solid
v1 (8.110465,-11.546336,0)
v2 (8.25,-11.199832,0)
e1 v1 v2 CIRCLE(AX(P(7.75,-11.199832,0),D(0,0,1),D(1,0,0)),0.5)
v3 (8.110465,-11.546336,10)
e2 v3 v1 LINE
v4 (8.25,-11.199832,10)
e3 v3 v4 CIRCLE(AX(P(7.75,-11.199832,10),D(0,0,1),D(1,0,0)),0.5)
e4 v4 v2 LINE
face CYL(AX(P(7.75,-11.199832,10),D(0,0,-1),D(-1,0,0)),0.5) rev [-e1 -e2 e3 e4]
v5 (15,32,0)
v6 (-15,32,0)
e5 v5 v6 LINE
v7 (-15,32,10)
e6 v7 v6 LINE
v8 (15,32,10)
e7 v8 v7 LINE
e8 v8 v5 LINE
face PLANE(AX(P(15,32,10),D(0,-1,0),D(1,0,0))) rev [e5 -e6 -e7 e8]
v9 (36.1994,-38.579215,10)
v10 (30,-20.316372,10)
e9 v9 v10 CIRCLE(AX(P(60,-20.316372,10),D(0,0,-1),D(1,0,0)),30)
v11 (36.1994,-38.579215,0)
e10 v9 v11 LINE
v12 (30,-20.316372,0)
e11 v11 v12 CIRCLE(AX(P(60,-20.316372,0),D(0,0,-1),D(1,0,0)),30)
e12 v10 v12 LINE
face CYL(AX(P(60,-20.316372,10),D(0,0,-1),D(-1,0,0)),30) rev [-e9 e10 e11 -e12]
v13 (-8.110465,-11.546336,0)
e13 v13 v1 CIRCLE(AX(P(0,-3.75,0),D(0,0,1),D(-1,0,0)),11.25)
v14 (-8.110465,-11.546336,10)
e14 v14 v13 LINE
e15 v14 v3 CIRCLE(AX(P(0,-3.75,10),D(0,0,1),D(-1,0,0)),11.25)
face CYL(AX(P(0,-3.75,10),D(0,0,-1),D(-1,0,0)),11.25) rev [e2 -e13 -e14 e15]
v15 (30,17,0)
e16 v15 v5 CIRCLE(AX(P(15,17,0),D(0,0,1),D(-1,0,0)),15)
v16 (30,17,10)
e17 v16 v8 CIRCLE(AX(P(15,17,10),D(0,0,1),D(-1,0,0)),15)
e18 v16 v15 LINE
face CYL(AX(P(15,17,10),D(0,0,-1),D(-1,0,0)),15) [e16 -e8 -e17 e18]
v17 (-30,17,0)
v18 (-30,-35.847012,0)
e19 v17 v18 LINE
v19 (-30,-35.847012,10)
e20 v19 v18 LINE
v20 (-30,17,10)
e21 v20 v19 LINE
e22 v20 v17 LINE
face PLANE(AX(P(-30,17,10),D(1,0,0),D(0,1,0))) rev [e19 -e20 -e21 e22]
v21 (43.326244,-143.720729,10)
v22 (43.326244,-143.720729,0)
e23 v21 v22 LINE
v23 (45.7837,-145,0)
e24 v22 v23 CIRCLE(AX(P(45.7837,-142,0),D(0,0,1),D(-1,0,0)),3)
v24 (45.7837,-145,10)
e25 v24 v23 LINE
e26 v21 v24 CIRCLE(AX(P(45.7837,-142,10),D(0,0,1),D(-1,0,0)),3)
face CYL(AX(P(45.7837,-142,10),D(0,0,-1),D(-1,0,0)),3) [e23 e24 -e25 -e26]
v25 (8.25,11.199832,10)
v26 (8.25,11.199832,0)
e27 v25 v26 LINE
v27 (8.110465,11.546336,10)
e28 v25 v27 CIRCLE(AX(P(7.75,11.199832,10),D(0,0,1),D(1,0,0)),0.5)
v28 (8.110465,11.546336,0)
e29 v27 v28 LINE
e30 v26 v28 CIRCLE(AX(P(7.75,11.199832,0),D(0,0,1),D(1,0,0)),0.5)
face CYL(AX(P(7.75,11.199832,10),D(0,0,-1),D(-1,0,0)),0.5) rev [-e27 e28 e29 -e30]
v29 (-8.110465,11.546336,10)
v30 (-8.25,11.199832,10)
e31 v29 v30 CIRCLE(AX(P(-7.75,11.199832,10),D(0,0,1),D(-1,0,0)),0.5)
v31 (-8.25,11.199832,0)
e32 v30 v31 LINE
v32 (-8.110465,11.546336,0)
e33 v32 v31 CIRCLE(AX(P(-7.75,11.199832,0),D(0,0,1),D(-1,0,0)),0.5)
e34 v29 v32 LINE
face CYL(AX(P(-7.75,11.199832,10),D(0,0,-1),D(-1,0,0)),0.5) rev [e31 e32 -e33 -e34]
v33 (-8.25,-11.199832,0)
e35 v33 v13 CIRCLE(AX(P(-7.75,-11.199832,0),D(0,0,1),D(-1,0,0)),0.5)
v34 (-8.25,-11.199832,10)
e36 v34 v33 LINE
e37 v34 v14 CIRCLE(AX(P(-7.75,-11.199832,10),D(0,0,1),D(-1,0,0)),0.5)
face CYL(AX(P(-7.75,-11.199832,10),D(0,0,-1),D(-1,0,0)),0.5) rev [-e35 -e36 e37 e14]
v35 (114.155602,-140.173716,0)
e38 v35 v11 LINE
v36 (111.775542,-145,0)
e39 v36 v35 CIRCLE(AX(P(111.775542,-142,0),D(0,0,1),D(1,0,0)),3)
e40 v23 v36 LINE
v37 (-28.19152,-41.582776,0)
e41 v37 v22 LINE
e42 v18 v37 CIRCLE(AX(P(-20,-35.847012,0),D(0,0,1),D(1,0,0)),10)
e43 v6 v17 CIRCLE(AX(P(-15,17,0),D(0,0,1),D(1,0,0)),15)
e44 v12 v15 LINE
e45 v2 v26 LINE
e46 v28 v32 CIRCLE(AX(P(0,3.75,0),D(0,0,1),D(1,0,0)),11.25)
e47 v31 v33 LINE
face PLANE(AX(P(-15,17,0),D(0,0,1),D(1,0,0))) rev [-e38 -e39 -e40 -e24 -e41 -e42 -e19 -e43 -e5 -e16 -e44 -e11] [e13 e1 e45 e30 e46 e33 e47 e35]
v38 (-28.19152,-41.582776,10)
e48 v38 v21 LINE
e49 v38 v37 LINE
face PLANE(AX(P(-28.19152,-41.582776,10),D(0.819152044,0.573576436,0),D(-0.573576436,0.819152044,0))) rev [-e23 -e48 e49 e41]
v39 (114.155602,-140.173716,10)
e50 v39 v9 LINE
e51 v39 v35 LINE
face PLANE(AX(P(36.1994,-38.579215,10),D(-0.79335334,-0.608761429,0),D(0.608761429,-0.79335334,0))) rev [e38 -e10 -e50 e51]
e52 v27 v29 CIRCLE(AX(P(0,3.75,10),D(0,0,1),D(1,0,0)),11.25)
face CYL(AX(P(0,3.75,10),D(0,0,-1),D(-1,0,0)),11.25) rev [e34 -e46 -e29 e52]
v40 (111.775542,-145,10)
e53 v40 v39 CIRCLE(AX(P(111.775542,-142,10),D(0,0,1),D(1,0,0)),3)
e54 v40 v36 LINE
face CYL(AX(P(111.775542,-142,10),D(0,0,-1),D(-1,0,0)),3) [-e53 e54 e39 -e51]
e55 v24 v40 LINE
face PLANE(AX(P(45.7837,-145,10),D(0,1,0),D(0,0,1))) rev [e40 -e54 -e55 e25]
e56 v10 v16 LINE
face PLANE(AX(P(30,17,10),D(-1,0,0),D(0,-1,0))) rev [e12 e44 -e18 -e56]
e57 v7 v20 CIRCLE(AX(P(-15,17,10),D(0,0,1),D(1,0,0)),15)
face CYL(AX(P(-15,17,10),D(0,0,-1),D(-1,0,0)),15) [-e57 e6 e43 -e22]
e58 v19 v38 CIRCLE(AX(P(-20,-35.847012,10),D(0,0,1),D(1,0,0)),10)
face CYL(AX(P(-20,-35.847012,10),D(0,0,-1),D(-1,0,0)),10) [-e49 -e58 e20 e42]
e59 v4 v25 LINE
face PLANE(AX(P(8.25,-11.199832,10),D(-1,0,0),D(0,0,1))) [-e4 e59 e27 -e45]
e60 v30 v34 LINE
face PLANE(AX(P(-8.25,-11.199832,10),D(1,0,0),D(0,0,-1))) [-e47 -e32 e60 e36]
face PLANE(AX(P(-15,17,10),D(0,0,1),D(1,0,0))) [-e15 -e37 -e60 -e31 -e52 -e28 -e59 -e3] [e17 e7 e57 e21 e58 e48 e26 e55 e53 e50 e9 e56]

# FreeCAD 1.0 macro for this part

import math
import FreeCAD as App
import Part
import Sketcher
from FreeCAD import Vector
Q = App.Units.Quantity

doc = App.newDocument("Part")
params = doc.addObject("Spreadsheet::Sheet", "Params")
for row, (alias, value) in enumerate([
    ("sketch1_radius", "15 mm"),
    ("sketch1_radius2", "10 mm"),
    ("sketch1_radius3", "3 mm"),
    ("sketch1_radius4", "30 mm"),
    ("sketch1_radius5", "0.5 mm"),
    ("pad1_length", "10 mm"),
], start=1):
    params.set(f"A{row}", alias)
    params.set(f"B{row}", "=" + value)
    params.setAlias(f"B{row}", alias)

body = doc.addObject("PartDesign::Body", "Body")

# Sketch on XY plane
sketch1 = body.newObject("Sketcher::SketchObject", "Sketch")
sketch1.AttachmentSupport = (doc.getObject("XY_Plane"), [""])
sketch1.MapMode = "FlatFace"
sketch1.addGeometry([
    Part.LineSegment(Vector(15, 32, 0), Vector(-15, 32, 0)),  # 0
    Part.ArcOfCircle(Part.Circle(Vector(-15, 17, 0), Vector(0, 0, 1), 15), math.radians(90), math.radians(180)),  # 1
    Part.LineSegment(Vector(-30, 17, 0), Vector(-30, -35.847012, 0)),  # 2
    Part.ArcOfCircle(Part.Circle(Vector(-20, -35.847012, 0), Vector(0, 0, 1), 10), math.radians(-180), math.radians(-145)),  # 3
    Part.LineSegment(Vector(-28.19152, -41.582776, 0), Vector(43.326244, -143.720729, 0)),  # 4
    Part.ArcOfCircle(Part.Circle(Vector(45.7837, -142, 0), Vector(0, 0, 1), 3), math.radians(-145), math.radians(-90)),  # 5
    Part.LineSegment(Vector(45.7837, -145, 0), Vector(111.775542, -145, 0)),  # 6
    Part.ArcOfCircle(Part.Circle(Vector(111.775542, -142, 0), Vector(0, 0, 1), 3), math.radians(-90), math.radians(37.5)),  # 7
    Part.LineSegment(Vector(114.155602, -140.173716, 0), Vector(36.1994, -38.579215, 0)),  # 8
    Part.ArcOfCircle(Part.Circle(Vector(60, -20.316372, 0), Vector(0, 0, 1), 30), math.radians(180), math.radians(217.5)),  # 9
    Part.LineSegment(Vector(30, -20.316372, 0), Vector(30, 17, 0)),  # 10
    Part.ArcOfCircle(Part.Circle(Vector(15, 17, 0), Vector(0, 0, 1), 15), math.radians(0), math.radians(90)),  # 11
    Part.LineSegment(Vector(8.25, 11.199832, 0), Vector(8.25, -11.199832, 0)),  # 12
    Part.ArcOfCircle(Part.Circle(Vector(7.75, -11.199832, 0), Vector(0, 0, 1), 0.5), math.radians(-43.868665), math.radians(0)),  # 13
    Part.ArcOfCircle(Part.Circle(Vector(0, -3.75, 0), Vector(0, 0, 1), 11.25), math.radians(-136.131336), math.radians(-43.868664)),  # 14
    Part.ArcOfCircle(Part.Circle(Vector(-7.75, -11.199832, 0), Vector(0, 0, 1), 0.5), math.radians(180), math.radians(223.868665)),  # 15
    Part.LineSegment(Vector(-8.25, -11.199832, 0), Vector(-8.25, 11.199832, 0)),  # 16
    Part.ArcOfCircle(Part.Circle(Vector(-7.75, 11.199832, 0), Vector(0, 0, 1), 0.5), math.radians(136.131335), math.radians(180)),  # 17
    Part.ArcOfCircle(Part.Circle(Vector(0, 3.75, 0), Vector(0, 0, 1), 11.25), math.radians(43.868664), math.radians(136.131336)),  # 18
    Part.ArcOfCircle(Part.Circle(Vector(7.75, 11.199832, 0), Vector(0, 0, 1), 0.5), math.radians(0), math.radians(43.868665)),  # 19
], False)
sketch1.addConstraint([
    Sketcher.Constraint("Tangent", 0, 2, 1, 1),
    Sketcher.Constraint("Tangent", 1, 2, 2, 1),
    Sketcher.Constraint("Tangent", 2, 2, 3, 1),
    Sketcher.Constraint("Tangent", 3, 2, 4, 1),
    Sketcher.Constraint("Tangent", 4, 2, 5, 1),
    Sketcher.Constraint("Tangent", 5, 2, 6, 1),
    Sketcher.Constraint("Tangent", 6, 2, 7, 1),
    Sketcher.Constraint("Tangent", 7, 2, 8, 1),
    Sketcher.Constraint("Tangent", 8, 2, 9, 2),
    Sketcher.Constraint("Tangent", 9, 1, 10, 1),
    Sketcher.Constraint("Tangent", 10, 2, 11, 1),
    Sketcher.Constraint("Tangent", 11, 2, 0, 1),
    Sketcher.Constraint("Tangent", 12, 2, 13, 2),
    Sketcher.Constraint("Tangent", 13, 1, 14, 2),
    Sketcher.Constraint("Tangent", 14, 1, 15, 2),
    Sketcher.Constraint("Tangent", 15, 1, 16, 1),
    Sketcher.Constraint("Tangent", 16, 2, 17, 2),
    Sketcher.Constraint("Tangent", 17, 1, 18, 2),
    Sketcher.Constraint("Tangent", 18, 1, 19, 2),
    Sketcher.Constraint("Tangent", 19, 1, 12, 1),
    Sketcher.Constraint("Horizontal", 0),
    Sketcher.Constraint("Vertical", 2),
    Sketcher.Constraint("Horizontal", 6),
    Sketcher.Constraint("Vertical", 10),
    Sketcher.Constraint("Vertical", 12),
    Sketcher.Constraint("Vertical", 16),
    Sketcher.Constraint("Equal", 5, 7),
    Sketcher.Constraint("Equal", 1, 11),
    Sketcher.Constraint("Equal", 13, 15),
    Sketcher.Constraint("Equal", 15, 17),
    Sketcher.Constraint("Equal", 14, 18),
    Sketcher.Constraint("Equal", 17, 19),
    Sketcher.Constraint("Symmetric", 13, 3, 17, 3, -1, 1),
    Sketcher.Constraint("Symmetric", 14, 3, 18, 3, -1),
    Sketcher.Constraint("Radius", 1, 15.0),
    Sketcher.Constraint("Radius", 3, 10.0),
    Sketcher.Constraint("Radius", 5, 3.0),
    Sketcher.Constraint("Radius", 9, 30.0),
    Sketcher.Constraint("Radius", 13, 0.5),
    Sketcher.Constraint("DistanceX", 0, 2, 0, 1, 30.0),
    Sketcher.Constraint("Angle", 4, Q("-55 deg")),
    Sketcher.Constraint("Radius", 14, 11.25),
    Sketcher.Constraint("DistanceX", 1, 3, -1, 1, 15.0),
    Sketcher.Constraint("DistanceY", -1, 1, 1, 3, 17.0),
    Sketcher.Constraint("DistanceY", 5, 3, -1, 1, 142.0),
    Sketcher.Constraint("Angle", 8, Q("127.5 deg")),
    Sketcher.Constraint("DistanceX", 15, 3, 12, 2, 16.0),
    Sketcher.Constraint("DistanceY", 14, 3, 18, 3, 7.5),
    Sketcher.Constraint("DistanceX", 6, 1, 6, 2, 65.991842),
    Sketcher.Constraint("DistanceX", -1, 1, 5, 3, 45.7837),
])
sketch1.setExpression("Constraints[34]", "Params.sketch1_radius")
sketch1.setExpression("Constraints[35]", "Params.sketch1_radius2")
sketch1.setExpression("Constraints[36]", "Params.sketch1_radius3")
sketch1.setExpression("Constraints[37]", "Params.sketch1_radius4")
sketch1.setExpression("Constraints[38]", "Params.sketch1_radius5")
pad1 = body.newObject("PartDesign::Pad", "Pad")
pad1.Profile = sketch1
pad1.setExpression("Length", "Params.pad1_length")

doc.recompute()
